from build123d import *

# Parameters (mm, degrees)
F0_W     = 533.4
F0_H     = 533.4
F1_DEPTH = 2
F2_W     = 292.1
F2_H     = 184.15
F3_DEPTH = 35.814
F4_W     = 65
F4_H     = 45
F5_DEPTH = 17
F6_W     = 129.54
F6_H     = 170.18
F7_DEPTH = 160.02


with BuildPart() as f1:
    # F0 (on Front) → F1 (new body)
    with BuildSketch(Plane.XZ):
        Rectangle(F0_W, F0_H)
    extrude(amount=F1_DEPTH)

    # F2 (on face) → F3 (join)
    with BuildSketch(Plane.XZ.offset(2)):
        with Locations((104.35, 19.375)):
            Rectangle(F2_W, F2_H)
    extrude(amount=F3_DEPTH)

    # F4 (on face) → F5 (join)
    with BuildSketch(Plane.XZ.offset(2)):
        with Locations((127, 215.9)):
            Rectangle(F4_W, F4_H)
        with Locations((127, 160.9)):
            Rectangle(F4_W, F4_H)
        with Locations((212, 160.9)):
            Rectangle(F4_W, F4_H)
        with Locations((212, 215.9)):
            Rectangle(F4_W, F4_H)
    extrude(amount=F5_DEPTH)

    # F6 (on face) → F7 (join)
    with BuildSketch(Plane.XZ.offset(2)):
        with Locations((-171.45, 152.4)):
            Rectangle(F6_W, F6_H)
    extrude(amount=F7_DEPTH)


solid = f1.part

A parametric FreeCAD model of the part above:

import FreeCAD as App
import Part
import Sketcher
Q = App.Units.Quantity


def add_polygon(sketch, points):
    """Adds a closed chain of lines whose ends are joined by coincident constraints."""
    first, n = sketch.GeometryCount, len(points)
    for a, b in zip(points, points[1:] + points[:1]):
        sketch.addGeometry(Part.LineSegment(App.Vector(*a, 0), App.Vector(*b, 0)), False)
    for i in range(n):
        sketch.addConstraint(Sketcher.Constraint("Coincident", first + i, 2, first + (i + 1) % n, 1))

doc = App.newDocument("Part")
body = doc.addObject("PartDesign::Body", "Body")

sketch1 = doc.addObject("Sketcher::SketchObject", "Sketch")
body.addObject(sketch1)
sketch1.AttachmentSupport = (doc.XZ_Plane, [""])
sketch1.MapMode = "FlatFace"
add_polygon(sketch1, [(-266.7, 266.7), (-266.7, -266.7), (266.7, -266.7), (266.7, 266.7)])
sketch1.addConstraint(Sketcher.Constraint("Vertical", 0))
sketch1.addConstraint(Sketcher.Constraint("Horizontal", 1))
sketch1.addConstraint(Sketcher.Constraint("Vertical", 2))
sketch1.addConstraint(Sketcher.Constraint("Horizontal", 3))
sketch1.addConstraint(Sketcher.Constraint("Symmetric", 0, 2, 2, 2, -1, 1))
sketch1.addConstraint(Sketcher.Constraint("Equal", 3, 0))
sketch1.addConstraint(Sketcher.Constraint("DistanceX", 1, 1, 1, 2, Q("21 in")))
pad1 = doc.addObject("PartDesign::Pad", "Pad")
body.addObject(pad1)
pad1.Profile = sketch1
pad1.Length = 2

sketch2 = doc.addObject("Sketcher::SketchObject", "Sketch001")
body.addObject(sketch2)
sketch2.AttachmentSupport = (doc.XZ_Plane, [""])
sketch2.MapMode = "FlatFace"
sketch2.AttachmentOffset = App.Placement(App.Vector(0, 0, 2), App.Rotation())
add_polygon(sketch2, [(-41.7, 111.45), (-41.7, -72.7), (250.4, -72.7), (250.4, 111.45)])
sketch2.addConstraint(Sketcher.Constraint("Vertical", 0))
sketch2.addConstraint(Sketcher.Constraint("Horizontal", 1))
sketch2.addConstraint(Sketcher.Constraint("Vertical", 2))
sketch2.addConstraint(Sketcher.Constraint("Horizontal", 3))
sketch2.addConstraint(Sketcher.Constraint("DistanceX", 1, 1, 1, 2, Q("11.5 in")))
sketch2.addConstraint(Sketcher.Constraint("DistanceY", 0, 2, 0, 1, Q("7.25 in")))
sketch2.addConstraint(Sketcher.Constraint("DistanceX", 0, 2, -1, 1, 41.7))
sketch2.addConstraint(Sketcher.Constraint("DistanceY", 0, 2, -1, 1, 72.7))
pad2 = doc.addObject("PartDesign::Pad", "Pad001")
body.addObject(pad2)
pad2.Profile = sketch2
pad2.Length = Q("1.41 in")

sketch3 = doc.addObject("Sketcher::SketchObject", "Sketch002")
body.addObject(sketch3)
sketch3.AttachmentSupport = (doc.XZ_Plane, [""])
sketch3.MapMode = "FlatFace"
sketch3.AttachmentOffset = App.Placement(App.Vector(0, 0, 2), App.Rotation())
add_polygon(sketch3, [(94.5, 238.4), (94.5, 193.4), (159.5, 193.4), (159.5, 238.4)])
add_polygon(sketch3, [(94.5, 183.4), (94.5, 138.4), (159.5, 138.4), (159.5, 183.4)])
add_polygon(sketch3, [(179.5, 183.4), (179.5, 138.4), (244.5, 138.4), (244.5, 183.4)])
add_polygon(sketch3, [(179.5, 238.4), (179.5, 193.4), (244.5, 193.4), (244.5, 238.4)])
sketch3.addConstraint(Sketcher.Constraint("Vertical", 0))
sketch3.addConstraint(Sketcher.Constraint("Horizontal", 1))
sketch3.addConstraint(Sketcher.Constraint("Vertical", 2))
sketch3.addConstraint(Sketcher.Constraint("Horizontal", 3))
sketch3.addConstraint(Sketcher.Constraint("Vertical", 4))
sketch3.addConstraint(Sketcher.Constraint("Horizontal", 5))
sketch3.addConstraint(Sketcher.Constraint("Vertical", 6))
sketch3.addConstraint(Sketcher.Constraint("Horizontal", 7))
sketch3.addConstraint(Sketcher.Constraint("Vertical", 8))
sketch3.addConstraint(Sketcher.Constraint("Horizontal", 9))
sketch3.addConstraint(Sketcher.Constraint("Vertical", 10))
sketch3.addConstraint(Sketcher.Constraint("Horizontal", 11))
sketch3.addConstraint(Sketcher.Constraint("Vertical", 12))
sketch3.addConstraint(Sketcher.Constraint("Horizontal", 13))
sketch3.addConstraint(Sketcher.Constraint("Vertical", 14))
sketch3.addConstraint(Sketcher.Constraint("Horizontal", 15))
sketch3.addConstraint(Sketcher.Constraint("Horizontal", 5, 2, 8, 2))
sketch3.addConstraint(Sketcher.Constraint("Horizontal", 7, 2, 10, 2))
sketch3.addConstraint(Sketcher.Constraint("Horizontal", 1, 2, 12, 2))
sketch3.addConstraint(Sketcher.Constraint("Horizontal", 3, 2, 14, 2))
sketch3.addConstraint(Sketcher.Constraint("Vertical", 3, 2, 4, 2))
sketch3.addConstraint(Sketcher.Constraint("Vertical", 2, 2, 5, 2))
sketch3.addConstraint(Sketcher.Constraint("Vertical", 11, 2, 12, 2))
sketch3.addConstraint(Sketcher.Constraint("Vertical", 10, 2, 13, 2))
sketch3.addConstraint(Sketcher.Constraint("Equal", 7, 9))
sketch3.addConstraint(Sketcher.Constraint("Equal", 2, 4))
sketch3.addConstraint(Sketcher.Constraint("DistanceX", 1, 1, 1, 2, 65.0))
sketch3.addConstraint(Sketcher.Constraint("DistanceY", 0, 2, 0, 1, 45.0))
sketch3.addConstraint(Sketcher.Constraint("DistanceX", -1, 1, 0, 2, 94.5))
sketch3.addConstraint(Sketcher.Constraint("DistanceY", -1, 1, 0, 2, 193.4))
sketch3.addConstraint(Sketcher.Constraint("DistanceY", -1, 1, 4, 2, 138.4))
sketch3.addConstraint(Sketcher.Constraint("DistanceX", -1, 1, 8, 2, 179.5))
pad3 = doc.addObject("PartDesign::Pad", "Pad002")
body.addObject(pad3)
pad3.Profile = sketch3
pad3.Length = 17

sketch4 = doc.addObject("Sketcher::SketchObject", "Sketch003")
body.addObject(sketch4)
sketch4.AttachmentSupport = (doc.XZ_Plane, [""])
sketch4.MapMode = "FlatFace"
sketch4.AttachmentOffset = App.Placement(App.Vector(0, 0, 2), App.Rotation())
add_polygon(sketch4, [(-236.22, 237.49), (-236.22, 67.31), (-106.68, 67.31), (-106.68, 237.49)])
sketch4.addConstraint(Sketcher.Constraint("Vertical", 0))
sketch4.addConstraint(Sketcher.Constraint("Horizontal", 1))
sketch4.addConstraint(Sketcher.Constraint("Vertical", 2))
sketch4.addConstraint(Sketcher.Constraint("Horizontal", 3))
sketch4.addConstraint(Sketcher.Constraint("DistanceX", 1, 1, 1, 2, Q("5.1 in")))
sketch4.addConstraint(Sketcher.Constraint("DistanceY", 0, 2, 0, 1, Q("6.7 in")))
sketch4.addConstraint(Sketcher.Constraint("DistanceX", 0, 2, -1, 1, Q("9.3 in")))
sketch4.addConstraint(Sketcher.Constraint("DistanceY", -1, 1, 0, 2, Q("2.65 in")))
pad4 = doc.addObject("PartDesign::Pad", "Pad003")
body.addObject(pad4)
pad4.Profile = sketch4
pad4.Length = Q("6.3 in")

doc.recompute()
